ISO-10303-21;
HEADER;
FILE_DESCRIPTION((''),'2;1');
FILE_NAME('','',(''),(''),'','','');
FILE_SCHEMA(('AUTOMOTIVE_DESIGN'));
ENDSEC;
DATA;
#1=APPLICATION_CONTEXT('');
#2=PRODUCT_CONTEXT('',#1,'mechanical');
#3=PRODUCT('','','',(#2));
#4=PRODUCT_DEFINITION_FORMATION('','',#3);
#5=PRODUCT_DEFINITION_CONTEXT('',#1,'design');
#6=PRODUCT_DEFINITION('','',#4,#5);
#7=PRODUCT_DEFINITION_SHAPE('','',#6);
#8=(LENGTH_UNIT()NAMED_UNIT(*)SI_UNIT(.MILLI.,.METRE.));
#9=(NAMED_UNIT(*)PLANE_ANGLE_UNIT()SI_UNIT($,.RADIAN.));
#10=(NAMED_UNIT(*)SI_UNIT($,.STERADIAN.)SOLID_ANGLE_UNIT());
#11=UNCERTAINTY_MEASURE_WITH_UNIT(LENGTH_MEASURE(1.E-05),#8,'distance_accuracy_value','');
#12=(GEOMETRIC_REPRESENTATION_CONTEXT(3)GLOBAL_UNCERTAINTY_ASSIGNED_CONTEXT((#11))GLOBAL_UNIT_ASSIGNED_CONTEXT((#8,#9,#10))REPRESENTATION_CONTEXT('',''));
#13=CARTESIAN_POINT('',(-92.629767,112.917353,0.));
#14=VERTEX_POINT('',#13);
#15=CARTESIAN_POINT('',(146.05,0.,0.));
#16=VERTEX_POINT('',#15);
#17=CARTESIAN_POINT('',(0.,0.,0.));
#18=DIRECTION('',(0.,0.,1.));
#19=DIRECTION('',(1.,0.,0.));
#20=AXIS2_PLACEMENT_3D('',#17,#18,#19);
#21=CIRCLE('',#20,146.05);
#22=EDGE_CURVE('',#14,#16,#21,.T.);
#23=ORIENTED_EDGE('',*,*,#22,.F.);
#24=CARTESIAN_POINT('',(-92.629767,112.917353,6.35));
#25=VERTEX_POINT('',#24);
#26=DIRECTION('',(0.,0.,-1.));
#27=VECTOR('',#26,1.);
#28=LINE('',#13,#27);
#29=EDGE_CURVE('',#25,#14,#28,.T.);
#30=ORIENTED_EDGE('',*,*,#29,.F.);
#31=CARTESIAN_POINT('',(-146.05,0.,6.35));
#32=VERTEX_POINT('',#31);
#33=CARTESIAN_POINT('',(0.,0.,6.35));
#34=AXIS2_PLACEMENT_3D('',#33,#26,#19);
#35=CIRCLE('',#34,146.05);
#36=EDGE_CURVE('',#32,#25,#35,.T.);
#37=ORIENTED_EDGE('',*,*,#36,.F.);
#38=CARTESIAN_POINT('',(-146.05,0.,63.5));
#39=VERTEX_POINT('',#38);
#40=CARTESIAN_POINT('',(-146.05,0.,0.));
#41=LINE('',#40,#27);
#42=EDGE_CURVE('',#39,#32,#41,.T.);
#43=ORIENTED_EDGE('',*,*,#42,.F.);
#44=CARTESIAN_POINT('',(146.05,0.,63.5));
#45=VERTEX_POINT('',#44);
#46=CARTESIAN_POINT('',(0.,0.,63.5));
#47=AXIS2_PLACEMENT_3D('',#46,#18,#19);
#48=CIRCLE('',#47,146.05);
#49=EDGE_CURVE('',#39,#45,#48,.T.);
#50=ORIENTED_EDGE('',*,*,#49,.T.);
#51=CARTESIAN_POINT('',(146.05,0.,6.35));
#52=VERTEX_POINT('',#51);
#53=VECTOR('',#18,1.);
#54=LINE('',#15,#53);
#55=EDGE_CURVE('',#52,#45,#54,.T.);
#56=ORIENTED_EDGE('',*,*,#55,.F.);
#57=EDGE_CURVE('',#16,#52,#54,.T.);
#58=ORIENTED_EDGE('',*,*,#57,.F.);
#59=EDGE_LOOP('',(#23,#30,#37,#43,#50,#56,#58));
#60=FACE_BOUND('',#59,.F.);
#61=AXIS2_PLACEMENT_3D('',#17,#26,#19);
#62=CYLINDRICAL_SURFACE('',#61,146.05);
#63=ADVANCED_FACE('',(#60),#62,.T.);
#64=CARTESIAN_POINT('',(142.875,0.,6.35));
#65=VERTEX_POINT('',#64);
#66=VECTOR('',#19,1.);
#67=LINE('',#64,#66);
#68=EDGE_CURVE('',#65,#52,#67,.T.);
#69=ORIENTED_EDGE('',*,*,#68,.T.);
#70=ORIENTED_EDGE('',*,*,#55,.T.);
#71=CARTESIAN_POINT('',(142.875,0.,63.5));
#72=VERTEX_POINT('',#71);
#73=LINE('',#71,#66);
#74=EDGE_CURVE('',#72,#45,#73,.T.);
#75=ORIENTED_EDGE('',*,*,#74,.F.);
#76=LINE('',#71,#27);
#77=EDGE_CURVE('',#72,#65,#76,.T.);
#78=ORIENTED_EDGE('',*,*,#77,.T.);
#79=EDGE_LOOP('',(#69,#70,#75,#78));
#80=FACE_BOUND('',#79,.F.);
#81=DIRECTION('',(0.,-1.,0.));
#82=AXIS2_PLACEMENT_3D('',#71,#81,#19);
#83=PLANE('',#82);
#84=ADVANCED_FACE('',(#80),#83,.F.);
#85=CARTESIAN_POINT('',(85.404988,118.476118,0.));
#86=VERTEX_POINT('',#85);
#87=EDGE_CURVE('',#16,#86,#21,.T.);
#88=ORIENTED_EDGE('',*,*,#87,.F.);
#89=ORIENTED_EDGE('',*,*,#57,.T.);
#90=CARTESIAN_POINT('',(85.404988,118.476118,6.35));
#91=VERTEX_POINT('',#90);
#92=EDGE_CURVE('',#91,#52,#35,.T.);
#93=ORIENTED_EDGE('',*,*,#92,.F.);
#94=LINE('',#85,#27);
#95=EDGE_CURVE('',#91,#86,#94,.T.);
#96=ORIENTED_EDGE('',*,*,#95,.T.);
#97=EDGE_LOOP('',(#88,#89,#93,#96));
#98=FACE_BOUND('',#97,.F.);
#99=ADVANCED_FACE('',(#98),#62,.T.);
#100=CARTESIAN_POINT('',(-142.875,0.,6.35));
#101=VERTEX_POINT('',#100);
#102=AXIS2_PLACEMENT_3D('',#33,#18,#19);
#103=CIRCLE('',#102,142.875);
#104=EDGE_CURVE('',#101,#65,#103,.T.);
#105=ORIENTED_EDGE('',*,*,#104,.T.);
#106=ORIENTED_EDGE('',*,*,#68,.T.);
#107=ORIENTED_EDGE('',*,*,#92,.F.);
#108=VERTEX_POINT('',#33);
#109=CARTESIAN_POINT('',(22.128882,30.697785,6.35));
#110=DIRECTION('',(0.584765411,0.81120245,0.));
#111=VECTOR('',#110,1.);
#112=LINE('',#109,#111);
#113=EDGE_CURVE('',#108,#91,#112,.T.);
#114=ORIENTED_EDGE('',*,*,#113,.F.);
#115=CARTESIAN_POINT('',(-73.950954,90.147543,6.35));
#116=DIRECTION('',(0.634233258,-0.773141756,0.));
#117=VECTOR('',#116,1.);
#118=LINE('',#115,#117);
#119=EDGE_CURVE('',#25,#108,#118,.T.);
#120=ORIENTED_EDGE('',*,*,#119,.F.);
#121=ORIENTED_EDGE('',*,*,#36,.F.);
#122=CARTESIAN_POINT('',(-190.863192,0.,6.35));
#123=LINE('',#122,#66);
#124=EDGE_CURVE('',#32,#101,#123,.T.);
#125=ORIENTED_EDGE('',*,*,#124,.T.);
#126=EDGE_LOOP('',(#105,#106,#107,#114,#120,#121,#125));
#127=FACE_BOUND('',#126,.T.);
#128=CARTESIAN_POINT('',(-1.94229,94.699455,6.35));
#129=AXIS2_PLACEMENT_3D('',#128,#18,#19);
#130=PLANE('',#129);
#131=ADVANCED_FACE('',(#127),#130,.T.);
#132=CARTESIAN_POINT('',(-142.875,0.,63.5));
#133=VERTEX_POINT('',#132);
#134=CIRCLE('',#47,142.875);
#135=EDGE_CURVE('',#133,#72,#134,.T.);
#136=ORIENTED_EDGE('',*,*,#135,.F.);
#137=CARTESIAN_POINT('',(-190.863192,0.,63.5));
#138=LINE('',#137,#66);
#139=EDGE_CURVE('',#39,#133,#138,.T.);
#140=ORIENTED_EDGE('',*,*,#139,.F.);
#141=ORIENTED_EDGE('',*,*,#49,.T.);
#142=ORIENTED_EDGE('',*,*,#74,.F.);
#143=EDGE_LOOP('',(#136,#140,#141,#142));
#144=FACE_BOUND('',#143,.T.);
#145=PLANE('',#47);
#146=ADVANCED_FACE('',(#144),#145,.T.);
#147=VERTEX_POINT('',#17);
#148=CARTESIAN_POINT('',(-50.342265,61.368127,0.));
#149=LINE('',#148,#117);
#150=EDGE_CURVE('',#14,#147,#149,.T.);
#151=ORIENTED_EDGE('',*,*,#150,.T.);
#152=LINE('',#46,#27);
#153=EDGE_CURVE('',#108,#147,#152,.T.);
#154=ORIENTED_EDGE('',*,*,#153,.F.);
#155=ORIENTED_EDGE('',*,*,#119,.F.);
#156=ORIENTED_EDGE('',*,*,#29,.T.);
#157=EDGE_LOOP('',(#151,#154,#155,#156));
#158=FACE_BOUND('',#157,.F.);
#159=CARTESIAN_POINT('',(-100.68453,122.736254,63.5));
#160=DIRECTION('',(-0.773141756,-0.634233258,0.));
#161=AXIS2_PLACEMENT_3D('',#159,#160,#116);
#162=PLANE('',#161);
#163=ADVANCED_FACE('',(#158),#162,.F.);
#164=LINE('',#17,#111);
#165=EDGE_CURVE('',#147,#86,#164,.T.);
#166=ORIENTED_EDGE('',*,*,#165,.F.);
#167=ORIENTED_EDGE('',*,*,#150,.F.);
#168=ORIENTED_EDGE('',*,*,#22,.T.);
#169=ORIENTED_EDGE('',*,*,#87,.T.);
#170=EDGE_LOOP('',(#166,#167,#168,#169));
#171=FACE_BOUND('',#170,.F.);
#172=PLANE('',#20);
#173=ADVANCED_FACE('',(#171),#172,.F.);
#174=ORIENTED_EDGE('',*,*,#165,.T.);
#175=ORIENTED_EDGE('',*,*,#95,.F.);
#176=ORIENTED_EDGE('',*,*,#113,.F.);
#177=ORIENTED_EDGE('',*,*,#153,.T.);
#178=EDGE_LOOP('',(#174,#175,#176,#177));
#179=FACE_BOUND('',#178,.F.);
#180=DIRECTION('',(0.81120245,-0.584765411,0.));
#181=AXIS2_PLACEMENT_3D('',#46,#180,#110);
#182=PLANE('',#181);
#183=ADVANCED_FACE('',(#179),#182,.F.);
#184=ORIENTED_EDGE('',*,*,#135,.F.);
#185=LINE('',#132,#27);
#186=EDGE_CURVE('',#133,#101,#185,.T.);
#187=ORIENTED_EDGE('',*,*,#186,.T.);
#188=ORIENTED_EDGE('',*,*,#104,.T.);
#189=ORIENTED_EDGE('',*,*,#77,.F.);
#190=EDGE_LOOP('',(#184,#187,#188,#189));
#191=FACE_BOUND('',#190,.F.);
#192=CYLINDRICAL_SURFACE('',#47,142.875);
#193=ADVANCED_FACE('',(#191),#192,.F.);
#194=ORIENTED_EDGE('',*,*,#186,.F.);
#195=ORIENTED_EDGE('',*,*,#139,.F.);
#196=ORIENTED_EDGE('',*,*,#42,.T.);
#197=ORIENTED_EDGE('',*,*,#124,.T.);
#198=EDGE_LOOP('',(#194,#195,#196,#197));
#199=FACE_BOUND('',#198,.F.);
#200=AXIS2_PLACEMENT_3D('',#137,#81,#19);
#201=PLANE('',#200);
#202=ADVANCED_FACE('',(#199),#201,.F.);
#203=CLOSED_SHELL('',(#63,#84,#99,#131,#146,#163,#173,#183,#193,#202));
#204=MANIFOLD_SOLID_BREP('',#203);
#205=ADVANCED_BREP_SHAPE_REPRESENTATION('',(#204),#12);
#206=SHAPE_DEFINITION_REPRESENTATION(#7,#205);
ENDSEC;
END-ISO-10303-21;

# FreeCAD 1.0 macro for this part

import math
import FreeCAD as App
import Part
import Sketcher
from FreeCAD import Vector
Q = App.Units.Quantity

doc = App.newDocument("Part")
body = doc.addObject("PartDesign::Body", "Body")

sketch1 = doc.addObject("Sketcher::SketchObject", "Sketch")
body.addObject(sketch1)
sketch1.AttachmentSupport = (doc.XY_Plane, [""])
sketch1.MapMode = "FlatFace"
sketch1.addGeometry(Part.Circle(Vector(0, 0, 0), Vector(0, 0, 1), 146), False)
sketch1.addConstraint([
    Sketcher.Constraint("Coincident", 0, 3, -1, 1),
    Sketcher.Constraint("Diameter", 0, Q("11.5 in")),
])
pad1 = doc.addObject("PartDesign::Pad", "Pad")
body.addObject(pad1)
pad1.Profile = sketch1
pad1.Length = Q("2.5 in")

sketch2 = doc.addObject("Sketcher::SketchObject", "Sketch001")
body.addObject(sketch2)
sketch2.AttachmentSupport = (doc.XY_Plane, [""])
sketch2.MapMode = "FlatFace"
sketch2.AttachmentOffset = App.Placement(Vector(0, 0, 2.5 * 25.4), App.Rotation())
sketch2.addGeometry(Part.Circle(Vector(0, 0, 0), Vector(0, 0, 1), 143), False)
sketch2.addConstraint([
    Sketcher.Constraint("Coincident", 0, 3, -1, 1),
    Sketcher.Constraint("Diameter", 0, Q("11.25 in")),
])
pocket1 = doc.addObject("PartDesign::Pocket", "Pocket")
body.addObject(pocket1)
pocket1.Profile = sketch2
pocket1.Length = Q("2.25 in")

sketch3 = doc.addObject("Sketcher::SketchObject", "Sketch002")
body.addObject(sketch3)
sketch3.AttachmentSupport = (doc.XY_Plane, [""])
sketch3.MapMode = "FlatFace"
sketch3.AttachmentOffset = App.Placement(Vector(0, 0, 2.5 * 25.4), App.Rotation())
sketch3.addGeometry([
    Part.LineSegment(Vector(143, 0, 0), Vector(186, 0, 0)),
    Part.LineSegment(Vector(186, 0, 0), Vector(186, 148, 0)),
    Part.LineSegment(Vector(186, 148, 0), Vector(-191, 148, 0)),
    Part.LineSegment(Vector(-191, 148, 0), Vector(-191, 0, 0)),
    Part.LineSegment(Vector(-191, 0, 0), Vector(-143, 0, 0)),
    Part.ArcOfCircle(Part.Circle(Vector(0, 0, 0), Vector(0, 0, 1), 143), math.radians(0), math.radians(180)),
], False)
sketch3.addConstraint([
    Sketcher.Constraint("Coincident", 0, 2, 1, 1),
    Sketcher.Constraint("Coincident", 1, 2, 2, 1),
    Sketcher.Constraint("Coincident", 2, 2, 3, 1),
    Sketcher.Constraint("Coincident", 3, 2, 4, 1),
    Sketcher.Constraint("Coincident", 4, 2, 5, 2),
    Sketcher.Constraint("Coincident", 5, 1, 0, 1),
    Sketcher.Constraint("Horizontal", 0),
    Sketcher.Constraint("Vertical", 1),
    Sketcher.Constraint("Horizontal", 2),
    Sketcher.Constraint("Vertical", 3),
    Sketcher.Constraint("Horizontal", 4),
    Sketcher.Constraint("Coincident", 5, 3, -1, 1),
    Sketcher.Constraint("PointOnObject", 0, 2, -1),
    Sketcher.Constraint("PointOnObject", 3, 2, -1),
    Sketcher.Constraint("Radius", 5, Q("5.625 in")),
    Sketcher.Constraint("DistanceX", 4, 1, 4, 2, 47.988192),
    Sketcher.Constraint("DistanceX", 0, 1, 0, 2, 43.575183),
    Sketcher.Constraint("DistanceY", 1, 1, 1, 2, 147.836223),
])
pocket2 = doc.addObject("PartDesign::Pocket", "Pocket001")
body.addObject(pocket2)
pocket2.Profile = sketch3
pocket2.Length = Q("2.25 in")

sketch4 = doc.addObject("Sketcher::SketchObject", "Sketch003")
body.addObject(sketch4)
sketch4.AttachmentSupport = (doc.XY_Plane, [""])
sketch4.MapMode = "FlatFace"
sketch4.AttachmentOffset = App.Placement(Vector(0, 0, 2.5 * 25.4), App.Rotation())
sketch4.addGeometry([
    Part.LineSegment(Vector(0, 0, 0), Vector(93, 129, 0)),
    Part.ArcOfCircle(Part.Circle(Vector(1, -37, 0), Vector(0, 0, 1), 190), math.radians(61), math.radians(122)),
    Part.LineSegment(Vector(-101, 123, 0), Vector(0, 0, 0)),
], False)
sketch4.addConstraint([
    Sketcher.Constraint("Coincident", 0, 2, 1, 1),
    Sketcher.Constraint("Coincident", 1, 2, 2, 1),
    Sketcher.Constraint("Coincident", 2, 2, 0, 1),
    Sketcher.Constraint("Coincident", 2, 2, -1, 1),
    Sketcher.Constraint("Equal", 0, 2),
    Sketcher.Constraint("Distance", 0, Q("6.25 in")),
    Sketcher.Constraint("Radius", 1, 189.565142),
    Sketcher.Constraint("DistanceX", -1, 1, 1, 3, 1.159839),
    Sketcher.Constraint("DistanceY", 1, 3, -1, 1, 37.14704),
])
pocket3 = doc.addObject("PartDesign::Pocket", "Pocket002")
body.addObject(pocket3)
pocket3.Profile = sketch4
pocket3.Type = "ThroughAll"

doc.recompute()
